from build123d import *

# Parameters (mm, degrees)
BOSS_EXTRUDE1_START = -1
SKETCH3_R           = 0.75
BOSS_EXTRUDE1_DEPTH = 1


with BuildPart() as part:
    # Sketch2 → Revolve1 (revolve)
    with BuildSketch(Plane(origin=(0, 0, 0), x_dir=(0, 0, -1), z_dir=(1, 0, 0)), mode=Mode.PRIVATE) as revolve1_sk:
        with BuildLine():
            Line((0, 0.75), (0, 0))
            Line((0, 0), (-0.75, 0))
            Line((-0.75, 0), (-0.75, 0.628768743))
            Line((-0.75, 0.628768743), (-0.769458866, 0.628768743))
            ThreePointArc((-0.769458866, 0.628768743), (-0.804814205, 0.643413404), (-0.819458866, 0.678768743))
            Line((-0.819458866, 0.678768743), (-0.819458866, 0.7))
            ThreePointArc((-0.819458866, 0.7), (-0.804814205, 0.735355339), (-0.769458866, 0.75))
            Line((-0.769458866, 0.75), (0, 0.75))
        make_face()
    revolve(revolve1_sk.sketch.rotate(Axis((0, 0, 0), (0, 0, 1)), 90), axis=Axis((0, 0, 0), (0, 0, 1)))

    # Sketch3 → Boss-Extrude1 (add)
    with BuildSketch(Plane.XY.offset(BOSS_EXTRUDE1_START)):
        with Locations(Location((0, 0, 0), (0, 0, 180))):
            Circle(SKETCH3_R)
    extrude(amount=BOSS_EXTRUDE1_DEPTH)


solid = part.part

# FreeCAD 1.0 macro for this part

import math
import FreeCAD as App
import Part
import Sketcher

V = App.Vector

doc = App.newDocument("Part")
body = doc.addObject("PartDesign::Body", "Body")

# Sketch on YZ plane
sketch1 = body.newObject("Sketcher::SketchObject", "Sketch")
sketch1.AttachmentSupport = (doc.getObject("YZ_Plane"), [""])
sketch1.MapMode = "FlatFace"
sketch1.addGeometry([
    Part.LineSegment(V(0, 0, 0), V(0.75, 0, 0)),  # 0
    Part.LineSegment(V(0.75, 0, 0), V(0.75, 0.769459, 0)),  # 1
    Part.ArcOfCircle(Part.Circle(V(0.7, 0.769459, 0), V(0, 0, 1), 0.05), math.radians(0), math.radians(90)),  # 2
    Part.LineSegment(V(0.7, 0.819459, 0), V(0.678769, 0.819459, 0)),  # 3
    Part.ArcOfCircle(Part.Circle(V(0.678769, 0.769459, 0), V(0, 0, 1), 0.05), math.radians(90), math.radians(180)),  # 4
    Part.LineSegment(V(0.628769, 0.769459, 0), V(0.628769, 0.75, 0)),  # 5
    Part.LineSegment(V(0.628769, 0.75, 0), V(0, 0.75, 0)),  # 6
    Part.LineSegment(V(0, 0.75, 0), V(0, 0, 0)),  # 7
], False)
sketch1.addConstraint([
    Sketcher.Constraint("Coincident", 0, 2, 1, 1),
    Sketcher.Constraint("Tangent", 1, 2, 2, 1),
    Sketcher.Constraint("Tangent", 2, 2, 3, 1),
    Sketcher.Constraint("Tangent", 3, 2, 4, 1),
    Sketcher.Constraint("Tangent", 4, 2, 5, 1),
    Sketcher.Constraint("Coincident", 5, 2, 6, 1),
    Sketcher.Constraint("Coincident", 6, 2, 7, 1),
    Sketcher.Constraint("Coincident", 7, 2, 0, 1),
    Sketcher.Constraint("Horizontal", 0),
    Sketcher.Constraint("Vertical", 1),
    Sketcher.Constraint("Horizontal", 3),
    Sketcher.Constraint("Vertical", 5),
    Sketcher.Constraint("Horizontal", 6),
    Sketcher.Constraint("Vertical", 7),
    Sketcher.Constraint("Coincident", 7, 2, -1, 1),
    Sketcher.Constraint("Equal", 2, 4),
    Sketcher.Constraint("Equal", 0, 7),
    Sketcher.Constraint("Radius", 2, 0.05),
    Sketcher.Constraint("DistanceX", 0, 1, 0, 2, 0.75),
    Sketcher.Constraint("DistanceX", 3, 2, 3, 1, 0.021231),
    Sketcher.Constraint("DistanceY", 1, 1, 1, 2, 0.769459),
])
revolution = body.newObject("PartDesign::Revolution", "Revolution")
revolution.Profile = sketch1
revolution.ReferenceAxis = (sketch1, ["V_Axis"])
revolution.Angle = 360

# Sketch on XY plane
sketch2 = body.newObject("Sketcher::SketchObject", "Sketch001")
sketch2.AttachmentSupport = (doc.getObject("XY_Plane"), [""])
sketch2.MapMode = "FlatFace"
sketch2.AttachmentOffset = App.Placement(V(0, 0, -1), App.Rotation())
sketch2.addGeometry(Part.Circle(V(0, 0, 0), V(0, 0, 1), 0.75), False)
sketch2.addConstraint([
    Sketcher.Constraint("Coincident", 0, 3, -1, 1),
    Sketcher.Constraint("Diameter", 0, 1.5),
])
pad1 = body.newObject("PartDesign::Pad", "Pad")
pad1.Profile = sketch2
pad1.Length = 1

doc.recompute()
